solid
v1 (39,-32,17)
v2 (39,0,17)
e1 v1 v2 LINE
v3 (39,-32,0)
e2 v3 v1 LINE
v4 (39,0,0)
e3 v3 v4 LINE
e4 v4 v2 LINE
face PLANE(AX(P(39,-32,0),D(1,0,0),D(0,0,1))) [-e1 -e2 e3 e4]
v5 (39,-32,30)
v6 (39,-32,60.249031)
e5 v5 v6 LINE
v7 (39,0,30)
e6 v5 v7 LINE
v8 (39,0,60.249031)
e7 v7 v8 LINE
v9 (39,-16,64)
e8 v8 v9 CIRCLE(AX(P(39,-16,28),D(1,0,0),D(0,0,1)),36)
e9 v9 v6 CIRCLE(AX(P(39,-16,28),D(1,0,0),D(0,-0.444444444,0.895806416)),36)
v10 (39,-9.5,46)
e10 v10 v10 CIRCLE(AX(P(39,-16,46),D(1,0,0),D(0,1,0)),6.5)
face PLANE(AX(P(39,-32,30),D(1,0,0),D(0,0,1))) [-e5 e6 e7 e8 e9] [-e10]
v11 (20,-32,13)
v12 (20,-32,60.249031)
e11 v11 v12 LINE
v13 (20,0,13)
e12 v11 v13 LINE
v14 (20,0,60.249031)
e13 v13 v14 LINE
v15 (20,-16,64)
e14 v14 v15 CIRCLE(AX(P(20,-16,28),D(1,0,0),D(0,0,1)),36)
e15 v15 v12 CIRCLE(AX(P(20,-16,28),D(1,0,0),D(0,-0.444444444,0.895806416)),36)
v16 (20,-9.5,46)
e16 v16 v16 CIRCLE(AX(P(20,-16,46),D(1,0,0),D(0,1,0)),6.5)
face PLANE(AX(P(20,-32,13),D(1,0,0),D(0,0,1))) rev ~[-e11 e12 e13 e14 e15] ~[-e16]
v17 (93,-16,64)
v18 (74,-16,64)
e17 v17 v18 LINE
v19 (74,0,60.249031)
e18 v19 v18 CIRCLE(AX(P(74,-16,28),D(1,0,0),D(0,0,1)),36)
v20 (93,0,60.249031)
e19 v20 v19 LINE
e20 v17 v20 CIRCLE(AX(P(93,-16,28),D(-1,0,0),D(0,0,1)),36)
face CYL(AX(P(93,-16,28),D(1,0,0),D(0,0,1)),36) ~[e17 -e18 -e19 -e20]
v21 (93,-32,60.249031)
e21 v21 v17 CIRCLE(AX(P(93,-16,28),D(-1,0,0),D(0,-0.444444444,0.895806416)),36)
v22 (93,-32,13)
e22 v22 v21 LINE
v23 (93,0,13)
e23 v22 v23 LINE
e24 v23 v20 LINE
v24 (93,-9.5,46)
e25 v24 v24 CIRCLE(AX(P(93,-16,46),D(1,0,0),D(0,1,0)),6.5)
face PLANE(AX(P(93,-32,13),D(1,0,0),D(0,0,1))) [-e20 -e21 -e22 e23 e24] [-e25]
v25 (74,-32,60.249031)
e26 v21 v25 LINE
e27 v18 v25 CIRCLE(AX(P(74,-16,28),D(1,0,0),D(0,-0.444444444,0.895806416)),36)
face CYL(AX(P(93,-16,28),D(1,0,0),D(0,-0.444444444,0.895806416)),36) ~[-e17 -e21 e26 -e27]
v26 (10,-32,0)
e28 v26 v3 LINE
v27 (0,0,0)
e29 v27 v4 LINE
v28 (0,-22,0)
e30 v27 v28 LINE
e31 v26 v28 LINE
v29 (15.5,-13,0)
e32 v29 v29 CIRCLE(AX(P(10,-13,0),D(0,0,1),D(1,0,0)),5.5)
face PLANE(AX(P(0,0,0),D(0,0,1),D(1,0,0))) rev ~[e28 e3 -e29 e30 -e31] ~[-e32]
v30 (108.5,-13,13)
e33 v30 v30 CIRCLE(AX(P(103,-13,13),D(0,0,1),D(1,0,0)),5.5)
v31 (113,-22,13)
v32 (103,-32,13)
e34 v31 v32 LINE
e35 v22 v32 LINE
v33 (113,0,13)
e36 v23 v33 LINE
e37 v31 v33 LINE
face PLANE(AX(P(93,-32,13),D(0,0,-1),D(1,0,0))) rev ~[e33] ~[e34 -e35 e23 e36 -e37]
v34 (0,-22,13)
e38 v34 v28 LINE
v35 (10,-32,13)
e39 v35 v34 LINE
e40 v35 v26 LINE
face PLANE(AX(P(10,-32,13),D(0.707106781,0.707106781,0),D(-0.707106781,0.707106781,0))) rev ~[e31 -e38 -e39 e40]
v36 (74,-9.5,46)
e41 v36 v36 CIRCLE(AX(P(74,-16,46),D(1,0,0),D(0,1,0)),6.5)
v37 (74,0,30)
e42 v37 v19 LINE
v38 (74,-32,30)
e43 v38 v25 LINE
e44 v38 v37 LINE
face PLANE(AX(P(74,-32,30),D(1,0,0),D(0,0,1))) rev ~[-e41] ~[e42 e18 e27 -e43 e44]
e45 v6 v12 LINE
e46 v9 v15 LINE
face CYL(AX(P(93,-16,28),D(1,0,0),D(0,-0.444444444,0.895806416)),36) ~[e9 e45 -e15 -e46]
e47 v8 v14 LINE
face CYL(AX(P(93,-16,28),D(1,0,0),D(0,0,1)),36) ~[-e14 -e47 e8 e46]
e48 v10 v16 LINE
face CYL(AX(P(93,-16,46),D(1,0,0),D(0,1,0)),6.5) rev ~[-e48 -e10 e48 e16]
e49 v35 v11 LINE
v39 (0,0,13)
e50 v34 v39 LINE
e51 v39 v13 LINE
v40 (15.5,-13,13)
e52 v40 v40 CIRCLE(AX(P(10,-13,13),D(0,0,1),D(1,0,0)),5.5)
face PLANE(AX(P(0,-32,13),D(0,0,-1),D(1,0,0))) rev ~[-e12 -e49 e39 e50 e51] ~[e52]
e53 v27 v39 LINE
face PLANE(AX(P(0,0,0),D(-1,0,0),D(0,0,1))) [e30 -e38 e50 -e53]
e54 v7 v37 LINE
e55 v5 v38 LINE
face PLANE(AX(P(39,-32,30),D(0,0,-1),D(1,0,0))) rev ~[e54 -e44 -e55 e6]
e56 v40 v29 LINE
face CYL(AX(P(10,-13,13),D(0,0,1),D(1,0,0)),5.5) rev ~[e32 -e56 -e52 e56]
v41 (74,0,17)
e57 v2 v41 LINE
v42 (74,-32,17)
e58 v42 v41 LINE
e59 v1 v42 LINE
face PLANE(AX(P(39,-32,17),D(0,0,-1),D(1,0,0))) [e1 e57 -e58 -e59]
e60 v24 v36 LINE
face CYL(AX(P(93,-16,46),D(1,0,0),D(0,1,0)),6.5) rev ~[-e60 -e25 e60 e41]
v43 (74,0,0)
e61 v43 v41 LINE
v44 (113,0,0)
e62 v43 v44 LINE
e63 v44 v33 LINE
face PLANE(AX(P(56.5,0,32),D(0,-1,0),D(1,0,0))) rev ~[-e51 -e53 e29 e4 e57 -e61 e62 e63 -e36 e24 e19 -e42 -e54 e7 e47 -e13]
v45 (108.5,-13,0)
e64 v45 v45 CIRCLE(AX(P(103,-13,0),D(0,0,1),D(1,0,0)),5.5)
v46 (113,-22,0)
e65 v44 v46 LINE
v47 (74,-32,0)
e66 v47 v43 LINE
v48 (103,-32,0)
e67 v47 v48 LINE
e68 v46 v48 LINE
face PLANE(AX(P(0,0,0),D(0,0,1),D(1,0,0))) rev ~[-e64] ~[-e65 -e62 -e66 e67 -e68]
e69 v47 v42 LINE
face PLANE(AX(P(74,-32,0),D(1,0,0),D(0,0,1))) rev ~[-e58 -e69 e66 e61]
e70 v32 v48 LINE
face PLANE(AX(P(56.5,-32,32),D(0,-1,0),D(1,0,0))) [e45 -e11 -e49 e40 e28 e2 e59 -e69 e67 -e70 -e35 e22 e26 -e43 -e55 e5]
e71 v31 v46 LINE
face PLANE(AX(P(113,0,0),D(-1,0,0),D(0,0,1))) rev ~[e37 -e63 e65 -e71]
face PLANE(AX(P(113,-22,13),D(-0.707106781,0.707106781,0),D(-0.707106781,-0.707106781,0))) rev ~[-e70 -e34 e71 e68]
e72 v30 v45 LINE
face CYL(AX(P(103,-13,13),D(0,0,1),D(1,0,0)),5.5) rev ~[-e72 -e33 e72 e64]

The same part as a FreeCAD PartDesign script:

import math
import FreeCAD as App
import Part
import Sketcher

V = App.Vector
Q = App.Units.Quantity

doc = App.newDocument("Part")
params = doc.addObject("Spreadsheet::Sheet", "Params")
for row, (alias, value) in enumerate([
    ("sketch1_width", "113 mm"),
    ("sketch1_height", "64 mm"),
    ("pad1_length", "32 mm"),
    ("sketch2_width", "20 mm"),
    ("sketch2_width2", "35 mm"),
    ("sketch2_height", "51 mm"),
    ("sketch2_height2", "34 mm"),
    ("sketch2_height3", "17 mm"),
    ("sketch3_width", "10 mm"),
    ("pocket2_length", "25 mm"),
    ("sketch4_radius", "36 mm"),
    ("sketch4_width", "16 mm"),
    ("sketch5_diameter", "13 mm"),
    ("sketch6_diameter", "11 mm"),
], start=1):
    params.set(f"A{row}", alias)
    params.set(f"B{row}", "=" + value)
    params.setAlias(f"B{row}", alias)

body = doc.addObject("PartDesign::Body", "Body")

sketch1 = body.newObject("Sketcher::SketchObject", "Sketch")
sketch1.AttachmentSupport = (doc.getObject("XZ_Plane"), [""])
sketch1.MapMode = "FlatFace"
sketch1.addGeometry(Part.LineSegment(V(0, 64, 0), V(0, 0, 0)), False)
sketch1.addGeometry(Part.LineSegment(V(0, 0, 0), V(113, 0, 0)), False)
sketch1.addGeometry(Part.LineSegment(V(113, 0, 0), V(113, 64, 0)), False)
sketch1.addGeometry(Part.LineSegment(V(113, 64, 0), V(0, 64, 0)), False)
sketch1.addConstraint(Sketcher.Constraint("Coincident", 0, 2, 1, 1))
sketch1.addConstraint(Sketcher.Constraint("Coincident", 1, 2, 2, 1))
sketch1.addConstraint(Sketcher.Constraint("Coincident", 2, 2, 3, 1))
sketch1.addConstraint(Sketcher.Constraint("Coincident", 3, 2, 0, 1))
sketch1.addConstraint(Sketcher.Constraint("Vertical", 0))
sketch1.addConstraint(Sketcher.Constraint("Horizontal", 1))
sketch1.addConstraint(Sketcher.Constraint("Vertical", 2))
sketch1.addConstraint(Sketcher.Constraint("Horizontal", 3))
sketch1.addConstraint(Sketcher.Constraint("Coincident", 0, 2, -1, 1))
sketch1.addConstraint(Sketcher.Constraint("DistanceX", 1, 1, 1, 2, Q("113 mm")))
sketch1.addConstraint(Sketcher.Constraint("DistanceY", 0, 2, 0, 1, Q("64 mm")))
sketch1.setExpression("Constraints[9]", "Params.sketch1_width")
sketch1.setExpression("Constraints[10]", "Params.sketch1_height")
pad1 = body.newObject("PartDesign::Pad", "Pad")
pad1.Profile = sketch1
pad1.setExpression("Length", "Params.pad1_length")

sketch2 = body.newObject("Sketcher::SketchObject", "Sketch001")
sketch2.AttachmentSupport = (doc.getObject("XZ_Plane"), [""])
sketch2.MapMode = "FlatFace"
sketch2.AttachmentOffset = App.Placement(V(0, 0, 32), App.Rotation())
sketch2.addGeometry(Part.LineSegment(V(0, 64, 0), V(0, 13, 0)), False)
sketch2.addGeometry(Part.LineSegment(V(0, 13, 0), V(20, 13, 0)), False)
sketch2.addGeometry(Part.LineSegment(V(20, 13, 0), V(20, 64, 0)), False)
sketch2.addGeometry(Part.LineSegment(V(20, 64, 0), V(0, 64, 0)), False)
sketch2.addGeometry(Part.LineSegment(V(39, 64, 0), V(39, 30, 0)), False)
sketch2.addGeometry(Part.LineSegment(V(39, 30, 0), V(74, 30, 0)), False)
sketch2.addGeometry(Part.LineSegment(V(74, 30, 0), V(74, 64, 0)), False)
sketch2.addGeometry(Part.LineSegment(V(74, 64, 0), V(39, 64, 0)), False)
sketch2.addGeometry(Part.LineSegment(V(39, 17, 0), V(39, 0, 0)), False)
sketch2.addGeometry(Part.LineSegment(V(39, 0, 0), V(74, 0, 0)), False)
sketch2.addGeometry(Part.LineSegment(V(74, 0, 0), V(74, 17, 0)), False)
sketch2.addGeometry(Part.LineSegment(V(74, 17, 0), V(39, 17, 0)), False)
sketch2.addGeometry(Part.LineSegment(V(93, 64, 0), V(93, 13, 0)), False)
sketch2.addGeometry(Part.LineSegment(V(93, 13, 0), V(113, 13, 0)), False)
sketch2.addGeometry(Part.LineSegment(V(113, 13, 0), V(113, 64, 0)), False)
sketch2.addGeometry(Part.LineSegment(V(113, 64, 0), V(93, 64, 0)), False)
sketch2.addConstraint(Sketcher.Constraint("Coincident", 0, 2, 1, 1))
sketch2.addConstraint(Sketcher.Constraint("Coincident", 1, 2, 2, 1))
sketch2.addConstraint(Sketcher.Constraint("Coincident", 2, 2, 3, 1))
sketch2.addConstraint(Sketcher.Constraint("Coincident", 3, 2, 0, 1))
sketch2.addConstraint(Sketcher.Constraint("Coincident", 4, 2, 5, 1))
sketch2.addConstraint(Sketcher.Constraint("Coincident", 5, 2, 6, 1))
sketch2.addConstraint(Sketcher.Constraint("Coincident", 6, 2, 7, 1))
sketch2.addConstraint(Sketcher.Constraint("Coincident", 7, 2, 4, 1))
sketch2.addConstraint(Sketcher.Constraint("Coincident", 8, 2, 9, 1))
sketch2.addConstraint(Sketcher.Constraint("Coincident", 9, 2, 10, 1))
sketch2.addConstraint(Sketcher.Constraint("Coincident", 10, 2, 11, 1))
sketch2.addConstraint(Sketcher.Constraint("Coincident", 11, 2, 8, 1))
sketch2.addConstraint(Sketcher.Constraint("Coincident", 12, 2, 13, 1))
sketch2.addConstraint(Sketcher.Constraint("Coincident", 13, 2, 14, 1))
sketch2.addConstraint(Sketcher.Constraint("Coincident", 14, 2, 15, 1))
sketch2.addConstraint(Sketcher.Constraint("Coincident", 15, 2, 12, 1))
sketch2.addConstraint(Sketcher.Constraint("Vertical", 0))
sketch2.addConstraint(Sketcher.Constraint("Horizontal", 1))
sketch2.addConstraint(Sketcher.Constraint("Vertical", 2))
sketch2.addConstraint(Sketcher.Constraint("Horizontal", 3))
sketch2.addConstraint(Sketcher.Constraint("Vertical", 4))
sketch2.addConstraint(Sketcher.Constraint("Horizontal", 5))
sketch2.addConstraint(Sketcher.Constraint("Vertical", 6))
sketch2.addConstraint(Sketcher.Constraint("Horizontal", 7))
sketch2.addConstraint(Sketcher.Constraint("Vertical", 8))
sketch2.addConstraint(Sketcher.Constraint("Horizontal", 9))
sketch2.addConstraint(Sketcher.Constraint("Vertical", 10))
sketch2.addConstraint(Sketcher.Constraint("Horizontal", 11))
sketch2.addConstraint(Sketcher.Constraint("Vertical", 12))
sketch2.addConstraint(Sketcher.Constraint("Horizontal", 13))
sketch2.addConstraint(Sketcher.Constraint("Vertical", 14))
sketch2.addConstraint(Sketcher.Constraint("Horizontal", 15))
sketch2.addConstraint(Sketcher.Constraint("PointOnObject", 0, 2, -2))
sketch2.addConstraint(Sketcher.Constraint("PointOnObject", 8, 2, -1))
sketch2.addConstraint(Sketcher.Constraint("Horizontal", 3, 2, 6, 2))
sketch2.addConstraint(Sketcher.Constraint("Horizontal", 1, 2, 12, 2))
sketch2.addConstraint(Sketcher.Constraint("Horizontal", 7, 2, 14, 2))
sketch2.addConstraint(Sketcher.Constraint("Vertical", 7, 2, 8, 2))
sketch2.addConstraint(Sketcher.Constraint("Vertical", 6, 2, 9, 2))
sketch2.addConstraint(Sketcher.Constraint("Equal", 3, 13))
sketch2.addConstraint(Sketcher.Constraint("DistanceX", 1, 1, 1, 2, Q("20 mm")))
sketch2.addConstraint(Sketcher.Constraint("DistanceX", 5, 1, 5, 2, Q("35 mm")))
sketch2.addConstraint(Sketcher.Constraint("DistanceY", 0, 2, 0, 1, Q("51 mm")))
sketch2.addConstraint(Sketcher.Constraint("DistanceY", 4, 2, 4, 1, Q("34 mm")))
sketch2.addConstraint(Sketcher.Constraint("DistanceY", 8, 2, 8, 1, Q("17 mm")))
sketch2.addConstraint(Sketcher.Constraint("DistanceY", -1, 1, 0, 2, Q("13 mm")))
sketch2.addConstraint(Sketcher.Constraint("DistanceX", -1, 1, 4, 2, Q("39 mm")))
sketch2.addConstraint(Sketcher.Constraint("DistanceX", -1, 1, 12, 2, Q("93 mm")))
sketch2.setExpression("Constraints[40]", "Params.sketch2_width")
sketch2.setExpression("Constraints[41]", "Params.sketch2_width2")
sketch2.setExpression("Constraints[42]", "Params.sketch2_height")
sketch2.setExpression("Constraints[43]", "Params.sketch2_height2")
sketch2.setExpression("Constraints[44]", "Params.sketch2_height3")
pocket1 = body.newObject("PartDesign::Pocket", "Pocket")
pocket1.Profile = sketch2
pocket1.Type = "ThroughAll"

sketch3 = body.newObject("Sketcher::SketchObject", "Sketch002")
sketch3.AttachmentSupport = (doc.getObject("XY_Plane"), [""])
sketch3.MapMode = "FlatFace"
sketch3.AttachmentOffset = App.Placement(V(0, 0, 13), App.Rotation())
sketch3.addGeometry(Part.LineSegment(V(103, -32, 0), V(113, -32, 0)), False)
sketch3.addGeometry(Part.LineSegment(V(113, -32, 0), V(113, -22, 0)), False)
sketch3.addGeometry(Part.LineSegment(V(113, -22, 0), V(103, -32, 0)), False)
sketch3.addGeometry(Part.LineSegment(V(0, -22, 0), V(0, -32, 0)), False)
sketch3.addGeometry(Part.LineSegment(V(0, -32, 0), V(10, -32, 0)), False)
sketch3.addGeometry(Part.LineSegment(V(10, -32, 0), V(0, -22, 0)), False)
sketch3.addConstraint(Sketcher.Constraint("Coincident", 0, 2, 1, 1))
sketch3.addConstraint(Sketcher.Constraint("Coincident", 1, 2, 2, 1))
sketch3.addConstraint(Sketcher.Constraint("Coincident", 2, 2, 0, 1))
sketch3.addConstraint(Sketcher.Constraint("Coincident", 3, 2, 4, 1))
sketch3.addConstraint(Sketcher.Constraint("Coincident", 4, 2, 5, 1))
sketch3.addConstraint(Sketcher.Constraint("Coincident", 5, 2, 3, 1))
sketch3.addConstraint(Sketcher.Constraint("Horizontal", 0))
sketch3.addConstraint(Sketcher.Constraint("Vertical", 1))
sketch3.addConstraint(Sketcher.Constraint("Vertical", 3))
sketch3.addConstraint(Sketcher.Constraint("Horizontal", 4))
sketch3.addConstraint(Sketcher.Constraint("PointOnObject", 3, 2, -2))
sketch3.addConstraint(Sketcher.Constraint("Perpendicular", 2, 5))
sketch3.addConstraint(Sketcher.Constraint("Horizontal", 2, 2, 3, 2))
sketch3.addConstraint(Sketcher.Constraint("Horizontal", 1, 2, 5, 2))
sketch3.addConstraint(Sketcher.Constraint("Equal", 0, 4))
sketch3.addConstraint(Sketcher.Constraint("DistanceX", 0, 1, 0, 2, Q("10 mm")))
sketch3.addConstraint(Sketcher.Constraint("DistanceX", -1, 1, 0, 2, Q("113 mm")))
sketch3.addConstraint(Sketcher.Constraint("DistanceY", 0, 2, -1, 1, Q("32 mm")))
sketch3.setExpression("Constraints[15]", "Params.sketch3_width")
pocket2 = body.newObject("PartDesign::Pocket", "Pocket001")
pocket2.Profile = sketch3
pocket2.setExpression("Length", "Params.pocket2_length")

sketch4 = body.newObject("Sketcher::SketchObject", "Sketch003")
sketch4.AttachmentSupport = (doc.getObject("YZ_Plane"), [""])
sketch4.MapMode = "FlatFace"
sketch4.AttachmentOffset = App.Placement(V(0, 0, 93), App.Rotation())
sketch4.addGeometry(Part.ArcOfCircle(Part.Circle(V(-16, 28, 0), V(0, 0, 1), 36), math.radians(90), math.radians(116)), False)
sketch4.addGeometry(Part.LineSegment(V(-16, 64, 0), V(-32, 64, 0)), False)
sketch4.addGeometry(Part.LineSegment(V(-32, 64, 0), V(-32, 60.2, 0)), False)
sketch4.addGeometry(Part.ArcOfCircle(Part.Circle(V(-16, 28, 0), V(0, 0, 1), 36), math.radians(64), math.radians(90)), False)
sketch4.addGeometry(Part.LineSegment(V(0, 60.2, 0), V(0, 64, 0)), False)
sketch4.addGeometry(Part.LineSegment(V(0, 64, 0), V(-16, 64, 0)), False)
sketch4.addConstraint(Sketcher.Constraint("Tangent", 0, 1, 1, 1))
sketch4.addConstraint(Sketcher.Constraint("Coincident", 1, 2, 2, 1))
sketch4.addConstraint(Sketcher.Constraint("Coincident", 2, 2, 0, 2))
sketch4.addConstraint(Sketcher.Constraint("Coincident", 3, 1, 4, 1))
sketch4.addConstraint(Sketcher.Constraint("Coincident", 4, 2, 5, 1))
sketch4.addConstraint(Sketcher.Constraint("Tangent", 5, 2, 3, 2))
sketch4.addConstraint(Sketcher.Constraint("Horizontal", 1))
sketch4.addConstraint(Sketcher.Constraint("Vertical", 2))
sketch4.addConstraint(Sketcher.Constraint("Vertical", 4))
sketch4.addConstraint(Sketcher.Constraint("Horizontal", 5))
sketch4.addConstraint(Sketcher.Constraint("Coincident", 3, 3, 0, 3))
sketch4.addConstraint(Sketcher.Constraint("Equal", 0, 3))
sketch4.addConstraint(Sketcher.Constraint("PointOnObject", 3, 1, -2))
sketch4.addConstraint(Sketcher.Constraint("Horizontal", 2, 2, 3, 1))
sketch4.addConstraint(Sketcher.Constraint("Radius", 0, Q("36 mm")))
sketch4.addConstraint(Sketcher.Constraint("DistanceX", 1, 2, 1, 1, Q("16 mm")))
sketch4.addConstraint(Sketcher.Constraint("DistanceY", -1, 1, 0, 3, Q("28 mm")))
sketch4.setExpression("Constraints[14]", "Params.sketch4_radius")
sketch4.setExpression("Constraints[15]", "Params.sketch4_width")
pocket3 = body.newObject("PartDesign::Pocket", "Pocket002")
pocket3.Profile = sketch4
pocket3.Type = "ThroughAll"

sketch5 = body.newObject("Sketcher::SketchObject", "Sketch004")
sketch5.AttachmentSupport = (doc.getObject("YZ_Plane"), [""])
sketch5.MapMode = "FlatFace"
sketch5.AttachmentOffset = App.Placement(V(0, 0, 93), App.Rotation())
sketch5.addGeometry(Part.Circle(V(-16, 46, 0), V(0, 0, 1), 6), False)
sketch5.addConstraint(Sketcher.Constraint("Diameter", 0, Q("13 mm")))
sketch5.addConstraint(Sketcher.Constraint("DistanceX", 0, 3, -1, 1, Q("16 mm")))
sketch5.addConstraint(Sketcher.Constraint("DistanceY", -1, 1, 0, 3, Q("46 mm")))
sketch5.setExpression("Constraints[0]", "Params.sketch5_diameter")
pocket4 = body.newObject("PartDesign::Pocket", "Pocket003")
pocket4.Profile = sketch5
pocket4.Type = "ThroughAll"

sketch6 = body.newObject("Sketcher::SketchObject", "Sketch005")
sketch6.AttachmentSupport = (doc.getObject("XY_Plane"), [""])
sketch6.MapMode = "FlatFace"
sketch6.AttachmentOffset = App.Placement(V(0, 0, 13), App.Rotation())
sketch6.addGeometry(Part.Circle(V(103, -13, 0), V(0, 0, 1), 6), False)
sketch6.addGeometry(Part.Circle(V(10, -13, 0), V(0, 0, 1), 6), False)
sketch6.addConstraint(Sketcher.Constraint("Equal", 0, 1))
sketch6.addConstraint(Sketcher.Constraint("Horizontal", 0, 3, 1, 3))
sketch6.addConstraint(Sketcher.Constraint("Diameter", 0, Q("11 mm")))
sketch6.addConstraint(Sketcher.Constraint("DistanceX", -1, 1, 0, 3, Q("103 mm")))
sketch6.addConstraint(Sketcher.Constraint("DistanceY", 0, 3, -1, 1, Q("13 mm")))
sketch6.addConstraint(Sketcher.Constraint("DistanceX", -1, 1, 1, 3, Q("10 mm")))
sketch6.setExpression("Constraints[2]", "Params.sketch6_diameter")
pocket5 = body.newObject("PartDesign::Pocket", "Pocket004")
pocket5.Profile = sketch6
pocket5.Type = "ThroughAll"

doc.recompute()
